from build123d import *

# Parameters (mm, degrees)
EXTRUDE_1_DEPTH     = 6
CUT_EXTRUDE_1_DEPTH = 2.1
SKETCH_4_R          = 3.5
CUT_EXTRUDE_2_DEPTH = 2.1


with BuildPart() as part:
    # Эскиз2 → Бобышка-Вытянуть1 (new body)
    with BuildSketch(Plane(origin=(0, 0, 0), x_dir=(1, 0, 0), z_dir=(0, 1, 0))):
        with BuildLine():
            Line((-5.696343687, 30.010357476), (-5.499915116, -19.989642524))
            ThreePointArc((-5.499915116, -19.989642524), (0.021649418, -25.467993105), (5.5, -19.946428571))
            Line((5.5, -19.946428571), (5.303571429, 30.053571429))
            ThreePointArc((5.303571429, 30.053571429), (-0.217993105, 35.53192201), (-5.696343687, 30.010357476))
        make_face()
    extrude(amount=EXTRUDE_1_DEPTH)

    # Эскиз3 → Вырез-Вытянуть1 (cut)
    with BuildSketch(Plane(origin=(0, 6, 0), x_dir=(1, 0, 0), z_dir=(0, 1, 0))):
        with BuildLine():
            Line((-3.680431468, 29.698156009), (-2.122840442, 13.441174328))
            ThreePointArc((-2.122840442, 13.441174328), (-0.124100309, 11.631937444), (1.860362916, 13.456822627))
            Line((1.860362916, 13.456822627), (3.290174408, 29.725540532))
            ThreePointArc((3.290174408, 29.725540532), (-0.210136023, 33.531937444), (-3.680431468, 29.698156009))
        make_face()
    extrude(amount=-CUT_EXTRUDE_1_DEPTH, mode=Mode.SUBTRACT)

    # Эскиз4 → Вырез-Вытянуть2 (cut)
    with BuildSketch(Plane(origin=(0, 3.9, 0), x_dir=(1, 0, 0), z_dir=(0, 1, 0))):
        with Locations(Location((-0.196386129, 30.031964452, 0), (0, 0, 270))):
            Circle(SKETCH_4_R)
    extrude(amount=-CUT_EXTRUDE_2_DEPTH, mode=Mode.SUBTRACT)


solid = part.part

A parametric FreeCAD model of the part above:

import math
import FreeCAD as App
import Part
import Sketcher

V = App.Vector
Q = App.Units.Quantity

doc = App.newDocument("Part")
body = doc.addObject("PartDesign::Body", "Body")

# Sketch on XZ plane
sketch1 = doc.addObject("Sketcher::SketchObject", "Sketch")
body.addObject(sketch1)
sketch1.AttachmentSupport = (doc.XZ_Plane, [""])
sketch1.MapMode = "FlatFace"
sketch1.addGeometry([
    Part.LineSegment(V(-6, -30, 0), V(-5, 20, 0)),
    Part.ArcOfCircle(Part.Circle(V(0, 20, 0), V(0, 0, 1), 6), math.radians(0), math.radians(180)),
    Part.LineSegment(V(6, 20, 0), V(5, -30, 0)),
    Part.ArcOfCircle(Part.Circle(V(0, -30, 0), V(0, 0, 1), 6), math.radians(180), math.radians(360)),
], False)
sketch1.addConstraint([
    Sketcher.Constraint("Tangent", 0, 2, 1, 2),
    Sketcher.Constraint("Tangent", 1, 1, 2, 1),
    Sketcher.Constraint("Tangent", 2, 2, 3, 2),
    Sketcher.Constraint("Tangent", 3, 1, 0, 1),
    Sketcher.Constraint("Equal", 1, 3),
    Sketcher.Constraint("Radius", 1, Q("5.5 mm")),
    Sketcher.Constraint("DistanceY", 3, 3, 1, 3, Q("50 mm")),
    Sketcher.Constraint("DistanceX", -1, 1, 1, 1, Q("5.5 mm")),
    Sketcher.Constraint("DistanceY", -1, 1, 1, 1, Q("19.946429 mm")),
    Sketcher.Constraint("DistanceX", -1, 1, 2, 2, Q("5.303571 mm")),
])
pad1 = doc.addObject("PartDesign::Pad", "Pad")
body.addObject(pad1)
pad1.Profile = sketch1
pad1.Length = 6
pad1.Reversed = True

# Sketch on XZ plane
sketch2 = doc.addObject("Sketcher::SketchObject", "Sketch001")
body.addObject(sketch2)
sketch2.AttachmentSupport = (doc.XZ_Plane, [""])
sketch2.MapMode = "FlatFace"
sketch2.AttachmentOffset = App.Placement(V(0, 0, -6), App.Rotation())
sketch2.addGeometry([
    Part.LineSegment(V(-3.7, -29.7, 0), V(-2.1, -13.4, 0)),
    Part.ArcOfCircle(Part.Circle(V(-0.1, -13.6, 0), V(0, 0, 1), 2), math.radians(5), math.radians(175)),
    Part.LineSegment(V(1.9, -13.5, 0), V(3.3, -29.7, 0)),
    Part.ArcOfCircle(Part.Circle(V(-0.2, -30, 0), V(0, 0, 1), 3.5), math.radians(175), math.radians(365)),
], False)
sketch2.addConstraint([
    Sketcher.Constraint("Tangent", 0, 2, 1, 2),
    Sketcher.Constraint("Tangent", 1, 1, 2, 1),
    Sketcher.Constraint("Tangent", 2, 2, 3, 2),
    Sketcher.Constraint("Tangent", 3, 1, 0, 1),
    Sketcher.Constraint("Radius", 1, Q("2 mm")),
    Sketcher.Constraint("Radius", 3, Q("3.5 mm")),
    Sketcher.Constraint("DistanceY", 1, 3, 1, 1, Q("0.175099 mm")),
    Sketcher.Constraint("Distance", 0, Q("16.331428 mm")),
    Sketcher.Constraint("DistanceX", 0, 2, -1, 1, Q("2.12284 mm")),
    Sketcher.Constraint("DistanceY", 2, 2, -1, 1, Q("29.725541 mm")),
])
pocket1 = doc.addObject("PartDesign::Pocket", "Pocket")
body.addObject(pocket1)
pocket1.Profile = sketch2
pocket1.Length = 2.1
pocket1.Reversed = True

# Sketch on XZ plane
sketch3 = doc.addObject("Sketcher::SketchObject", "Sketch002")
body.addObject(sketch3)
sketch3.AttachmentSupport = (doc.XZ_Plane, [""])
sketch3.MapMode = "FlatFace"
sketch3.AttachmentOffset = App.Placement(V(0, 0, -3.9), App.Rotation())
sketch3.addGeometry(Part.Circle(V(-0.2, -30, 0), V(0, 0, 1), 3.5), False)
sketch3.addConstraint([
    Sketcher.Constraint("Diameter", 0, Q("7 mm")),
    Sketcher.Constraint("DistanceX", 0, 3, -1, 1, Q("0.196386 mm")),
    Sketcher.Constraint("DistanceY", 0, 3, -1, 1, Q("30.031964 mm")),
])
pocket2 = doc.addObject("PartDesign::Pocket", "Pocket001")
body.addObject(pocket2)
pocket2.Profile = sketch3
pocket2.Length = 2.1
pocket2.Reversed = True

doc.recompute()
